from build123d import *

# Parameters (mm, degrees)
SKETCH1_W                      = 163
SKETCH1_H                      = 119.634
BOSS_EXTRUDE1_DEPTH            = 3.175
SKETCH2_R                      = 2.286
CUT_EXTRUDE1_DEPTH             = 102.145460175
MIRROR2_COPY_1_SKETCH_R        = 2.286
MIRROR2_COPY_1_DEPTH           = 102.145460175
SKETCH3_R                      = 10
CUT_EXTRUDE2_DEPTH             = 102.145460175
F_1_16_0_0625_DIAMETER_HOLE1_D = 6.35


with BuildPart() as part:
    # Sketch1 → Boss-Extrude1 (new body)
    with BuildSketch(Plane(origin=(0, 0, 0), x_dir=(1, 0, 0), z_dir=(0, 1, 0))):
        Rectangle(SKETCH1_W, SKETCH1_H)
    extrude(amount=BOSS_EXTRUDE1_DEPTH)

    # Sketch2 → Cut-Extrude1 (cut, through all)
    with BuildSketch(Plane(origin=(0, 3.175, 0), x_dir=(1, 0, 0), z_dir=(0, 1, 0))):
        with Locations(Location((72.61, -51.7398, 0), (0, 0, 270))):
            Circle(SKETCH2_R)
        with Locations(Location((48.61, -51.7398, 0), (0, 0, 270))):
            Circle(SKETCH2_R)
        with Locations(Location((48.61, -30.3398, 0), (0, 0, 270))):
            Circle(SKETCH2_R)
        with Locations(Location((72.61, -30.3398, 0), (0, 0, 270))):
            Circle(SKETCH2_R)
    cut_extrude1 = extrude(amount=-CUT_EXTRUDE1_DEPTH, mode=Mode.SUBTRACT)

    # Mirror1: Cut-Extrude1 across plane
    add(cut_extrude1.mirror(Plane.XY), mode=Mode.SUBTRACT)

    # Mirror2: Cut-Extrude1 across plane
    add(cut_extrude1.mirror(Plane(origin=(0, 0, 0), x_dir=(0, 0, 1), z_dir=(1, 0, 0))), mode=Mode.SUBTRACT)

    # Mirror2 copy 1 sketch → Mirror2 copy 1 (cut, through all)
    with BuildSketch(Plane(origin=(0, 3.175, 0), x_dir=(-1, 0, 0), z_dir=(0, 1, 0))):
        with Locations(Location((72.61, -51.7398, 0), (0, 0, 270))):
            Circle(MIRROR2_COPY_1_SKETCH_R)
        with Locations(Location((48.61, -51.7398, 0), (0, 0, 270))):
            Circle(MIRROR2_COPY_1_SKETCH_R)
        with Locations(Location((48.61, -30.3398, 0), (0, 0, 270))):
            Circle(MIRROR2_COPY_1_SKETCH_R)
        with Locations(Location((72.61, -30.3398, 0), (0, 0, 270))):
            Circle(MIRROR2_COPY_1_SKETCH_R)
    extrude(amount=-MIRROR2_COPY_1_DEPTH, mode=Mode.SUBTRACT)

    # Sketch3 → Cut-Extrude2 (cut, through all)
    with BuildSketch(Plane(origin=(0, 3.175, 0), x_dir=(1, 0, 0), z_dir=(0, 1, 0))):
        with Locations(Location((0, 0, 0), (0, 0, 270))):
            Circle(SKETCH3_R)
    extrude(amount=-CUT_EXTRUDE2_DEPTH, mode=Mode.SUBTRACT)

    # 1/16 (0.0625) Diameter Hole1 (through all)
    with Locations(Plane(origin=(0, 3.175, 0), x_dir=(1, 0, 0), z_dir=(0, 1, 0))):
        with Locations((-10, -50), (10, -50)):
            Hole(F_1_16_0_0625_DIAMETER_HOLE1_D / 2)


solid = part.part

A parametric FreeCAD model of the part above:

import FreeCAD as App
import Part
import Sketcher
Q = App.Units.Quantity


def add_polygon(sketch, points):
    """Adds a closed chain of lines whose ends are joined by coincident constraints."""
    first, n = sketch.GeometryCount, len(points)
    for a, b in zip(points, points[1:] + points[:1]):
        sketch.addGeometry(Part.LineSegment(App.Vector(*a, 0), App.Vector(*b, 0)), False)
    for i in range(n):
        sketch.addConstraint(Sketcher.Constraint("Coincident", first + i, 2, first + (i + 1) % n, 1))

doc = App.newDocument("Part")
body = doc.addObject("PartDesign::Body", "Body")

sketch1 = body.newObject("Sketcher::SketchObject", "Sketch")
sketch1.AttachmentSupport = (doc.getObject("XZ_Plane"), [""])
sketch1.MapMode = "FlatFace"
add_polygon(sketch1, [(-82, -60), (-82, 60), (82, 60), (82, -60)])
sketch1.addConstraint(Sketcher.Constraint("Vertical", 0))
sketch1.addConstraint(Sketcher.Constraint("Horizontal", 1))
sketch1.addConstraint(Sketcher.Constraint("Vertical", 2))
sketch1.addConstraint(Sketcher.Constraint("Horizontal", 3))
sketch1.addConstraint(Sketcher.Constraint("Symmetric", 0, 2, 2, 2, -1, 1))
sketch1.addConstraint(Sketcher.Constraint("DistanceY", 0, 1, 0, 2, Q("4.71 in")))
sketch1.addConstraint(Sketcher.Constraint("DistanceX", 1, 1, 1, 2, Q("163 mm")))
pad1 = body.newObject("PartDesign::Pad", "Pad")
pad1.Profile = sketch1
pad1.Length = Q("0.125 in")
pad1.Reversed = True

sketch2 = body.newObject("Sketcher::SketchObject", "Sketch001")
sketch2.AttachmentSupport = (doc.getObject("XZ_Plane"), [""])
sketch2.MapMode = "FlatFace"
sketch2.AttachmentOffset = App.Placement(App.Vector(0, 0, -0.125 * 25.4), App.Rotation())
sketch2.addGeometry(Part.Circle(App.Vector(72.6, 51.7, 0), App.Vector(0, 0, 1), 2.3), False)
sketch2.addGeometry(Part.Circle(App.Vector(48.6, 51.7, 0), App.Vector(0, 0, 1), 2.3), False)
sketch2.addGeometry(Part.Circle(App.Vector(48.6, 30.3, 0), App.Vector(0, 0, 1), 2.3), False)
sketch2.addGeometry(Part.Circle(App.Vector(72.6, 30.3, 0), App.Vector(0, 0, 1), 2.3), False)
sketch2.addConstraint(Sketcher.Constraint("Equal", 0, 1))
sketch2.addConstraint(Sketcher.Constraint("Equal", 1, 2))
sketch2.addConstraint(Sketcher.Constraint("Equal", 2, 3))
sketch2.addConstraint(Sketcher.Constraint("Horizontal", 0, 3, 1, 3))
sketch2.addConstraint(Sketcher.Constraint("Horizontal", 2, 3, 3, 3))
sketch2.addConstraint(Sketcher.Constraint("Vertical", 1, 3, 2, 3))
sketch2.addConstraint(Sketcher.Constraint("Vertical", 0, 3, 3, 3))
sketch2.addConstraint(Sketcher.Constraint("Diameter", 0, Q("0.18 in")))
sketch2.addConstraint(Sketcher.Constraint("DistanceY", -1, 1, 0, 3, Q("2.037 in")))
sketch2.addConstraint(Sketcher.Constraint("DistanceX", -1, 1, 0, 3, Q("72.61 mm")))
sketch2.addConstraint(Sketcher.Constraint("DistanceX", -1, 1, 1, 3, Q("48.61 mm")))
sketch2.addConstraint(Sketcher.Constraint("DistanceY", -1, 1, 2, 3, Q("30.3398 mm")))
pocket1 = body.newObject("PartDesign::Pocket", "Pocket")
pocket1.Profile = sketch2
pocket1.Type = "ThroughAll"
pocket1.Reversed = True
doc.recompute()

mirrored = body.newObject("PartDesign::Mirrored", "Mirrored")
mirrored.Originals = [pocket1]
mirrored.MirrorPlane = (doc.getObject("XY_Plane"), [""])
body.Tip = mirrored
doc.recompute()

mirrored2 = body.newObject("PartDesign::Mirrored", "Mirrored001")
mirrored2.Originals = [pocket1]
mirrored2.MirrorPlane = (doc.getObject("YZ_Plane"), [""])
body.Tip = mirrored2

sketch3 = body.newObject("Sketcher::SketchObject", "Sketch002")
sketch3.AttachmentSupport = (doc.getObject("XZ_Plane"), [""])
sketch3.MapMode = "FlatFace"
sketch3.AttachmentOffset = App.Placement(App.Vector(0, 0, -0.125 * 25.4), App.Rotation())
sketch3.addGeometry(Part.Circle(App.Vector(-72.6, -51.7, 0), App.Vector(0, 0, 1), 2.3), False)
sketch3.addGeometry(Part.Circle(App.Vector(-48.6, -51.7, 0), App.Vector(0, 0, 1), 2.3), False)
sketch3.addGeometry(Part.Circle(App.Vector(-48.6, -30.3, 0), App.Vector(0, 0, 1), 2.3), False)
sketch3.addGeometry(Part.Circle(App.Vector(-72.6, -30.3, 0), App.Vector(0, 0, 1), 2.3), False)
sketch3.addConstraint(Sketcher.Constraint("Equal", 0, 1))
sketch3.addConstraint(Sketcher.Constraint("Equal", 1, 2))
sketch3.addConstraint(Sketcher.Constraint("Equal", 2, 3))
sketch3.addConstraint(Sketcher.Constraint("Horizontal", 0, 3, 1, 3))
sketch3.addConstraint(Sketcher.Constraint("Horizontal", 2, 3, 3, 3))
sketch3.addConstraint(Sketcher.Constraint("Vertical", 1, 3, 2, 3))
sketch3.addConstraint(Sketcher.Constraint("Vertical", 0, 3, 3, 3))
sketch3.addConstraint(Sketcher.Constraint("Diameter", 0, Q("0.18 in")))
sketch3.addConstraint(Sketcher.Constraint("DistanceY", 0, 3, -1, 1, Q("2.037 in")))
sketch3.addConstraint(Sketcher.Constraint("DistanceX", 0, 3, -1, 1, Q("72.61 mm")))
sketch3.addConstraint(Sketcher.Constraint("DistanceX", 1, 3, -1, 1, Q("48.61 mm")))
sketch3.addConstraint(Sketcher.Constraint("DistanceY", 2, 3, -1, 1, Q("30.3398 mm")))
pocket2 = body.newObject("PartDesign::Pocket", "Pocket001")
pocket2.Profile = sketch3
pocket2.Type = "ThroughAll"
pocket2.Reversed = True

sketch4 = body.newObject("Sketcher::SketchObject", "Sketch003")
sketch4.AttachmentSupport = (doc.getObject("XZ_Plane"), [""])
sketch4.MapMode = "FlatFace"
sketch4.AttachmentOffset = App.Placement(App.Vector(0, 0, -0.125 * 25.4), App.Rotation())
sketch4.addGeometry(Part.Circle(App.Vector(0, 0, 0), App.Vector(0, 0, 1), 10), False)
sketch4.addConstraint(Sketcher.Constraint("Coincident", 0, 3, -1, 1))
sketch4.addConstraint(Sketcher.Constraint("Diameter", 0, Q("20 mm")))
pocket3 = body.newObject("PartDesign::Pocket", "Pocket002")
pocket3.Profile = sketch4
pocket3.Type = "ThroughAll"
pocket3.Reversed = True

sketch5 = body.newObject("Sketcher::SketchObject", "Sketch004")
sketch5.AttachmentSupport = (doc.getObject("XZ_Plane"), [""])
sketch5.MapMode = "FlatFace"
sketch5.AttachmentOffset = App.Placement(App.Vector(0, 0, -0.125 * 25.4), App.Rotation())
sketch5.addGeometry(Part.Circle(App.Vector(-10, 50, 0), App.Vector(0, 0, 1), 3.2), False)
sketch5.addGeometry(Part.Circle(App.Vector(10, 50, 0), App.Vector(0, 0, 1), 3.2), False)
sketch5.addConstraint(Sketcher.Constraint("Equal", 0, 1))
sketch5.addConstraint(Sketcher.Constraint("Symmetric", 0, 3, 1, 3, -2))
sketch5.addConstraint(Sketcher.Constraint("Diameter", 0, Q("0.25 in")))
sketch5.addConstraint(Sketcher.Constraint("DistanceX", 0, 3, -1, 1, Q("10 mm")))
sketch5.addConstraint(Sketcher.Constraint("DistanceY", -1, 1, 0, 3, Q("50 mm")))
doc.recompute()
hole = body.newObject("PartDesign::Hole", "Hole")
hole.Profile = sketch5
hole.ThreadType = "None"
hole.Diameter = Q("0.25 in")
hole.DepthType = "ThroughAll"
hole.Reversed = True

doc.recompute()
